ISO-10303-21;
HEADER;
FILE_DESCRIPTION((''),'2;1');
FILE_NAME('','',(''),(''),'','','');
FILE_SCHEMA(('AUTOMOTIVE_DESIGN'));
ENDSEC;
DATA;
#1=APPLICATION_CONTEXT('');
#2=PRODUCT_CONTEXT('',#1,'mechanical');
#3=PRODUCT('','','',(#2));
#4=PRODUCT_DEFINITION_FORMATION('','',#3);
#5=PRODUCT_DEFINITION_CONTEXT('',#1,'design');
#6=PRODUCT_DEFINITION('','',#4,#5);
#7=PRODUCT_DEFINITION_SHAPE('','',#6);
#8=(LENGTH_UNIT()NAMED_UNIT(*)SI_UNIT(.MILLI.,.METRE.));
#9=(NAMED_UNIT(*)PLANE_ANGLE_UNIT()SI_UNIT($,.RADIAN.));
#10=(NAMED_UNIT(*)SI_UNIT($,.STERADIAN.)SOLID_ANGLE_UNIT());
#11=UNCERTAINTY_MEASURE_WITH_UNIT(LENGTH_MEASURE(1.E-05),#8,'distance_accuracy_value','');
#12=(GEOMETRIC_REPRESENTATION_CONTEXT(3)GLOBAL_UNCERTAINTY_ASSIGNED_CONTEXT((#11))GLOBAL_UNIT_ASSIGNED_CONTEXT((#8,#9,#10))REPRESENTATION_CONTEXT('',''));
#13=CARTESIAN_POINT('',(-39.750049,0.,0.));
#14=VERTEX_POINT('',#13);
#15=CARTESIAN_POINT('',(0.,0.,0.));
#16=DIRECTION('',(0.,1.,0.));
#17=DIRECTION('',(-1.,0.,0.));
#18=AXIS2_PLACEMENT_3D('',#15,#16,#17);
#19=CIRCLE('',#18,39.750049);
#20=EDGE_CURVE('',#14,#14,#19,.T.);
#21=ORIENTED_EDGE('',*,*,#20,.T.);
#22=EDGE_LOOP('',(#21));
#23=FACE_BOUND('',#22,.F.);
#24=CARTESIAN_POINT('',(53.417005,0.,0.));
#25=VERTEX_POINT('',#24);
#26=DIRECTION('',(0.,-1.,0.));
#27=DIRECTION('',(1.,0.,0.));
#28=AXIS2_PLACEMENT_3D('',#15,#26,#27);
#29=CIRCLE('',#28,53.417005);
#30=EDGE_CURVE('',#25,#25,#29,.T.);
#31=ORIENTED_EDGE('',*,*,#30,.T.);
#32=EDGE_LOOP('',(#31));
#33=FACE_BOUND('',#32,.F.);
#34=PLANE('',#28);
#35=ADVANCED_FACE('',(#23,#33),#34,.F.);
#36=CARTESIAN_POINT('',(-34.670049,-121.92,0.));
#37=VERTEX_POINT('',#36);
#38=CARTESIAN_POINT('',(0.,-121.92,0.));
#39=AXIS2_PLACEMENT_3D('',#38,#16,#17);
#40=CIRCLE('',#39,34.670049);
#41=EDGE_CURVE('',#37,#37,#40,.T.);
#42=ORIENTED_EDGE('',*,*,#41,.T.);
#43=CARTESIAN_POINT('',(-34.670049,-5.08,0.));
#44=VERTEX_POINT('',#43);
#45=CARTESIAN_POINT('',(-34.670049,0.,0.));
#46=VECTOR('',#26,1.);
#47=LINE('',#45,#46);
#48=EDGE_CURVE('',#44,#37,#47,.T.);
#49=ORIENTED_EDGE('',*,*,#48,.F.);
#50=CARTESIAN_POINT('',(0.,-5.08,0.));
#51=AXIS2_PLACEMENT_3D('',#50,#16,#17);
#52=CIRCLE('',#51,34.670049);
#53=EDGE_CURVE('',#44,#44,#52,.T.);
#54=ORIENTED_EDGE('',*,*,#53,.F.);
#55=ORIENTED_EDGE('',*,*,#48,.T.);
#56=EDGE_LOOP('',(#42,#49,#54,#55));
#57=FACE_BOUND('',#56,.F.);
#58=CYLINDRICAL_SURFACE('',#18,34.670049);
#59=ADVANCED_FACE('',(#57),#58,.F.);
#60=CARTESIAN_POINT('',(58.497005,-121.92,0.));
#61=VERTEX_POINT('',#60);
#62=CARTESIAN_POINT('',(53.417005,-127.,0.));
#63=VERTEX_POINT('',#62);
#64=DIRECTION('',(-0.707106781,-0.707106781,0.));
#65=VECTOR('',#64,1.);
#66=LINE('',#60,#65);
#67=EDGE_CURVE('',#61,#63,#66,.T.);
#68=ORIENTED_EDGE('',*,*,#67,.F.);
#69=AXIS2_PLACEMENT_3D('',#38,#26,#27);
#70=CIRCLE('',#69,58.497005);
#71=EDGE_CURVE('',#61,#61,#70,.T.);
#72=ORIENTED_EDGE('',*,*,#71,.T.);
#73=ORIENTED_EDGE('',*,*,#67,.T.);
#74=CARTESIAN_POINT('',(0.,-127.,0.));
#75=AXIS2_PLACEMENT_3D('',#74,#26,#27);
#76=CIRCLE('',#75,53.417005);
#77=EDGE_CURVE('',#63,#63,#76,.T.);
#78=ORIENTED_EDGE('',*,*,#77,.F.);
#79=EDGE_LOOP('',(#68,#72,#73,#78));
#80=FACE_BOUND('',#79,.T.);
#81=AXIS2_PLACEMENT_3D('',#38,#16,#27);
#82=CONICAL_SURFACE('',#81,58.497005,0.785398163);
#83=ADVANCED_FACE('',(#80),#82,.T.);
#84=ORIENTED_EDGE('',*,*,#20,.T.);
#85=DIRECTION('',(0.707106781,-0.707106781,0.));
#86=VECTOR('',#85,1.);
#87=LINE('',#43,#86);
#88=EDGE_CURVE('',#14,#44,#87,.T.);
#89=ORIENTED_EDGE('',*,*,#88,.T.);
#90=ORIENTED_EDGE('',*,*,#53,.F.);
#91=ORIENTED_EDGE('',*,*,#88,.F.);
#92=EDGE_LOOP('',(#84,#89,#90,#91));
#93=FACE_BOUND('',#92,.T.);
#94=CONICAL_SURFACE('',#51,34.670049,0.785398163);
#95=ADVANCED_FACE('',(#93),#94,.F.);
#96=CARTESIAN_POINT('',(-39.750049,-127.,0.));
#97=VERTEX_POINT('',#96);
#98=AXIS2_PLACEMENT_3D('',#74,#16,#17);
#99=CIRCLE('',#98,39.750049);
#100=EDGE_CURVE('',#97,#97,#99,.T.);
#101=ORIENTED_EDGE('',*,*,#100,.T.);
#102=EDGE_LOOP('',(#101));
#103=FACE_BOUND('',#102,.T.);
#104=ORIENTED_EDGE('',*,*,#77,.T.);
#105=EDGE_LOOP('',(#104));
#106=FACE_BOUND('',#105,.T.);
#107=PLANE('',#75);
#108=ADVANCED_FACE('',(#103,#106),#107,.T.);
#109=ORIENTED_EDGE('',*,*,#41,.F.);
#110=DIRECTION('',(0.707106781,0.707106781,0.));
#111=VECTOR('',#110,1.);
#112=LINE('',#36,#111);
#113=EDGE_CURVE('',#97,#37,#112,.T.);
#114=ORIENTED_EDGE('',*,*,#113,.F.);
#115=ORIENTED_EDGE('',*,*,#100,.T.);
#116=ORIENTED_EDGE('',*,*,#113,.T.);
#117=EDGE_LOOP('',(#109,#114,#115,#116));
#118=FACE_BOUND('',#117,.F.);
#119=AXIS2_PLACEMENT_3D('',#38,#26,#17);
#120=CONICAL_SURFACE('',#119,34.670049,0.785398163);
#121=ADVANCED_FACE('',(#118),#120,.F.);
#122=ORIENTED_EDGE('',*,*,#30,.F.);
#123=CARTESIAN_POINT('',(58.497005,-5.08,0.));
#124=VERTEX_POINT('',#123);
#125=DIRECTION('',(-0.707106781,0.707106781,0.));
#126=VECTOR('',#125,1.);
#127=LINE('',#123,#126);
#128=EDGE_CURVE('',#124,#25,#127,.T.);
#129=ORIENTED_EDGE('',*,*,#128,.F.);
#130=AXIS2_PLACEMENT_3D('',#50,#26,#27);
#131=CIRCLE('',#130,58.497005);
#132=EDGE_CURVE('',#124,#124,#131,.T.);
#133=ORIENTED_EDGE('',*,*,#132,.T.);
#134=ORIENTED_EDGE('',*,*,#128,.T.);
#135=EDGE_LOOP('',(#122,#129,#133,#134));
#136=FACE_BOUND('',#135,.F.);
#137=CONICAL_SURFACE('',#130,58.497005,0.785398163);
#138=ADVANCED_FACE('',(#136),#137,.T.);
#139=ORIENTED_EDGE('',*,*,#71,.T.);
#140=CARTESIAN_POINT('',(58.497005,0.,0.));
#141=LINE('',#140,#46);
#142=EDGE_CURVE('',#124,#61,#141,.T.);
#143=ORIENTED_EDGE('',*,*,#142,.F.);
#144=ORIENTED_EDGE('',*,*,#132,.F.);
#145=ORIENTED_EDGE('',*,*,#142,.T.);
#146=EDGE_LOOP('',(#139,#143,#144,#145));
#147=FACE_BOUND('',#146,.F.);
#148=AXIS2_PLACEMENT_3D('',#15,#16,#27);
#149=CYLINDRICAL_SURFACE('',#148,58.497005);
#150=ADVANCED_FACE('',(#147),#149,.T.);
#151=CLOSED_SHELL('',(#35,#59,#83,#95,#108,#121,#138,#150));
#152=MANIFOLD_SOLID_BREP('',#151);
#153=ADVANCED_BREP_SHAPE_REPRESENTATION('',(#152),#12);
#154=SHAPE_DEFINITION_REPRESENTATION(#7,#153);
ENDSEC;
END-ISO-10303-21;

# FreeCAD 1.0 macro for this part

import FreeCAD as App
import Part
import Sketcher

V = App.Vector
Q = App.Units.Quantity


def edges_at(feature, points):
    """Names of the edges that pass closest to the given points."""
    edges = feature.Shape.Edges
    near = lambda p: min(range(len(edges)), key=lambda i: edges[i].distToShape(Part.Vertex(*p))[0])
    return sorted({f"Edge{near(p) + 1}" for p in points})

doc = App.newDocument("Part")
params = doc.addObject("Spreadsheet::Sheet", "Params")
for row, (alias, value) in enumerate([
    ("pad1_length", "5 in"),
    ("chamfer_size", "0.2 in"),
], start=1):
    params.set(f"A{row}", alias)
    params.set(f"B{row}", "=" + value)
    params.setAlias(f"B{row}", alias)

body = doc.addObject("PartDesign::Body", "Body")

# Sketch on XZ plane
sketch1 = body.newObject("Sketcher::SketchObject", "Sketch")
sketch1.AttachmentSupport = (doc.getObject("XZ_Plane"), [""])
sketch1.MapMode = "FlatFace"
sketch1.addGeometry(Part.Circle(V(0, 0, 0), V(0, 0, 1), 58), False)
sketch1.addConstraint([
    Sketcher.Constraint("Coincident", 0, 3, -1, 1),
    Sketcher.Constraint("Diameter", 0, Q("116.99401 mm")),
])
pad1 = body.newObject("PartDesign::Pad", "Pad")
pad1.Profile = sketch1
pad1.setExpression("Length", "Params.pad1_length")

# Sketch on XZ plane
sketch2 = body.newObject("Sketcher::SketchObject", "Sketch001")
sketch2.AttachmentSupport = (doc.getObject("XZ_Plane"), [""])
sketch2.MapMode = "FlatFace"
sketch2.addGeometry(Part.Circle(V(0, 0, 0), V(0, 0, 1), 35), False)
sketch2.addConstraint([
    Sketcher.Constraint("Coincident", 0, 3, -1, 1),
    Sketcher.Constraint("Diameter", 0, Q("69.340098 mm")),
])
pocket1 = body.newObject("PartDesign::Pocket", "Pocket")
pocket1.Profile = sketch2
pocket1.Type = "ThroughAll"
pocket1.Reversed = True
doc.recompute()

chamfer = body.newObject("PartDesign::Chamfer", "Chamfer")
chamfer.Base = (pocket1, edges_at(pocket1, [
    (-58.497, 0, 0),
    (34.67, 0, 0),
    (-58.497, -127, 0),
    (34.67, -127, 0),
]))
chamfer.setExpression("Size", "Params.chamfer_size")

doc.recompute()
